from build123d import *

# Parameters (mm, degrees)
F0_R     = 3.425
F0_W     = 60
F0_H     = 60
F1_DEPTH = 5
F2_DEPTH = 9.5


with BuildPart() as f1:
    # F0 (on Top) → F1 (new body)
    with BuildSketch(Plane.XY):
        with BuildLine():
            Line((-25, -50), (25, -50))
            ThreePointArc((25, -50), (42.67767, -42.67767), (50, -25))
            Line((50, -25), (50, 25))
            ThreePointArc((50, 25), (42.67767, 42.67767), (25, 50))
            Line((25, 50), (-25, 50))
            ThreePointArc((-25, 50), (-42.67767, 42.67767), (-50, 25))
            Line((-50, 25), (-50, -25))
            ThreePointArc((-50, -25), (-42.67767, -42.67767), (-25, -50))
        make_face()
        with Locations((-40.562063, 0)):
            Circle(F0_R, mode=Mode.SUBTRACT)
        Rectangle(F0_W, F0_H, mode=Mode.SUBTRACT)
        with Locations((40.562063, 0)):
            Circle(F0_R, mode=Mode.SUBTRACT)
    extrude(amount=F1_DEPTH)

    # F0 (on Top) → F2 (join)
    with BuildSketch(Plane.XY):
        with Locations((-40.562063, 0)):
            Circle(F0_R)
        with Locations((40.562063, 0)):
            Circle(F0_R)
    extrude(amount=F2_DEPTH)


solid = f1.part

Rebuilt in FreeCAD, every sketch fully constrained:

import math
import FreeCAD as App
import Part
import Sketcher

V = App.Vector

doc = App.newDocument("Part")
params = doc.addObject("Spreadsheet::Sheet", "Params")
for row, (alias, value) in enumerate([
    ("sketch1_radius", "24.999998 mm"),
    ("sketch1_diameter", "6.85 mm"),
    ("sketch1_width", "50 mm"),
    ("sketch1_width2", "60 mm"),
    ("pad1_length", "5 mm"),
    ("sketch2_diameter", "6.85 mm"),
    ("pad2_length", "9.5 mm"),
], start=1):
    params.set(f"A{row}", alias)
    params.set(f"B{row}", "=" + value)
    params.setAlias(f"B{row}", alias)

body = doc.addObject("PartDesign::Body", "Body")

# Sketch on XY plane
sketch1 = body.newObject("Sketcher::SketchObject", "Sketch")
sketch1.AttachmentSupport = (doc.getObject("XY_Plane"), [""])
sketch1.MapMode = "FlatFace"
sketch1.addGeometry([
    Part.LineSegment(V(-25, -50, 0), V(25, -50, 0)),  # 0
    Part.ArcOfCircle(Part.Circle(V(25, -25, 0), V(0, 0, 1), 25), math.radians(-90), math.radians(0)),  # 1
    Part.LineSegment(V(50, -25, 0), V(50, 25, 0)),  # 2
    Part.ArcOfCircle(Part.Circle(V(25, 25, 0), V(0, 0, 1), 25), math.radians(0), math.radians(90)),  # 3
    Part.LineSegment(V(25, 50, 0), V(-25, 50, 0)),  # 4
    Part.ArcOfCircle(Part.Circle(V(-25, 25, 0), V(0, 0, 1), 25), math.radians(90), math.radians(180)),  # 5
    Part.LineSegment(V(-50, 25, 0), V(-50, -25, 0)),  # 6
    Part.ArcOfCircle(Part.Circle(V(-25, -25, 0), V(0, 0, 1), 25), math.radians(180), math.radians(270)),  # 7
    Part.Circle(V(-40.6, 0, 0), V(0, 0, 1), 3.4),  # 8
    Part.LineSegment(V(30, -30, 0), V(-30, -30, 0)),  # 9
    Part.LineSegment(V(-30, -30, 0), V(-30, 30, 0)),  # 10
    Part.LineSegment(V(-30, 30, 0), V(30, 30, 0)),  # 11
    Part.LineSegment(V(30, 30, 0), V(30, -30, 0)),  # 12
    Part.Circle(V(40.6, 0, 0), V(0, 0, 1), 3.4),  # 13
], False)
sketch1.addConstraint([
    Sketcher.Constraint("Tangent", 0, 2, 1, 1),
    Sketcher.Constraint("Tangent", 1, 2, 2, 1),
    Sketcher.Constraint("Tangent", 2, 2, 3, 1),
    Sketcher.Constraint("Tangent", 3, 2, 4, 1),
    Sketcher.Constraint("Tangent", 4, 2, 5, 1),
    Sketcher.Constraint("Tangent", 5, 2, 6, 1),
    Sketcher.Constraint("Tangent", 6, 2, 7, 1),
    Sketcher.Constraint("Tangent", 7, 2, 0, 1),
    Sketcher.Constraint("Coincident", 9, 2, 10, 1),
    Sketcher.Constraint("Coincident", 10, 2, 11, 1),
    Sketcher.Constraint("Coincident", 11, 2, 12, 1),
    Sketcher.Constraint("Coincident", 12, 2, 9, 1),
    Sketcher.Constraint("Horizontal", 0),
    Sketcher.Constraint("Vertical", 2),
    Sketcher.Constraint("Horizontal", 4),
    Sketcher.Constraint("Vertical", 6),
    Sketcher.Constraint("Horizontal", 9),
    Sketcher.Constraint("Vertical", 10),
    Sketcher.Constraint("Horizontal", 11),
    Sketcher.Constraint("Vertical", 12),
    Sketcher.Constraint("Equal", 1, 3),
    Sketcher.Constraint("Equal", 3, 5),
    Sketcher.Constraint("Equal", 5, 7),
    Sketcher.Constraint("Equal", 8, 13),
    Sketcher.Constraint("Symmetric", 1, 3, 5, 3, -1, 1),
    Sketcher.Constraint("Symmetric", 8, 3, 13, 3, -1, 1),
    Sketcher.Constraint("Symmetric", 9, 2, 11, 2, -1, 1),
    Sketcher.Constraint("PointOnObject", 8, 3, -1),
    Sketcher.Constraint("Equal", 4, 2),
    Sketcher.Constraint("Equal", 11, 10),
    Sketcher.Constraint("Radius", 1, 24.999998),
    Sketcher.Constraint("Diameter", 8, 6.85),
    Sketcher.Constraint("DistanceX", 0, 1, 0, 2, 50.0),
    Sketcher.Constraint("DistanceX", 9, 2, 9, 1, 60.0),
    Sketcher.Constraint("DistanceX", 8, 3, 5, 3, 15.562061),
])
sketch1.setExpression("Constraints[30]", "Params.sketch1_radius")
sketch1.setExpression("Constraints[31]", "Params.sketch1_diameter")
sketch1.setExpression("Constraints[32]", "Params.sketch1_width")
sketch1.setExpression("Constraints[33]", "Params.sketch1_width2")
pad1 = body.newObject("PartDesign::Pad", "Pad")
pad1.Profile = sketch1
pad1.setExpression("Length", "Params.pad1_length")

# Sketch on XY plane
sketch2 = body.newObject("Sketcher::SketchObject", "Sketch001")
sketch2.AttachmentSupport = (doc.getObject("XY_Plane"), [""])
sketch2.MapMode = "FlatFace"
sketch2.addGeometry([
    Part.Circle(V(-40.6, 0, 0), V(0, 0, 1), 3.4),
    Part.Circle(V(40.6, 0, 0), V(0, 0, 1), 3.4),
], False)
sketch2.addConstraint([
    Sketcher.Constraint("Equal", 0, 1),
    Sketcher.Constraint("Symmetric", 0, 3, 1, 3, -1, 1),
    Sketcher.Constraint("PointOnObject", 0, 3, -1),
    Sketcher.Constraint("Diameter", 0, 6.85),
    Sketcher.Constraint("DistanceX", 0, 3, -1, 1, 40.562063),
])
sketch2.setExpression("Constraints[3]", "Params.sketch2_diameter")
pad2 = body.newObject("PartDesign::Pad", "Pad001")
pad2.Profile = sketch2
pad2.setExpression("Length", "Params.pad2_length")

doc.recompute()
